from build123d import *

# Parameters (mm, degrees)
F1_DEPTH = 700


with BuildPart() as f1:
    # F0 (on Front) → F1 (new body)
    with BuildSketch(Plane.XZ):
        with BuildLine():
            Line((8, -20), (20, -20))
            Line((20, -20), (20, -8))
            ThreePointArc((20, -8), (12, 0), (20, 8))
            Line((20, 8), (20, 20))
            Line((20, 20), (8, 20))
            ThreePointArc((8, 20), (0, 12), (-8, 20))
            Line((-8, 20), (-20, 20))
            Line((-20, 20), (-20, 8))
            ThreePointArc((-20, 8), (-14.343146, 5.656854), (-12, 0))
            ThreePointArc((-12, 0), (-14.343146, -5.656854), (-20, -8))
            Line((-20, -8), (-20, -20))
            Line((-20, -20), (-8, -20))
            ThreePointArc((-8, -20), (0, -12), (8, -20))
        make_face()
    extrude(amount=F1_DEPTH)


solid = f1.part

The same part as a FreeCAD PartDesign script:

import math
import FreeCAD as App
import Part
import Sketcher

doc = App.newDocument("Part")
params = doc.addObject("Spreadsheet::Sheet", "Params")
for row, (alias, value) in enumerate([
    ("sketch1_radius", "8 mm"),
    ("sketch1_width", "12 mm"),
    ("pad1_length", "700 mm"),
], start=1):
    params.set(f"A{row}", alias)
    params.set(f"B{row}", "=" + value)
    params.setAlias(f"B{row}", alias)

body = doc.addObject("PartDesign::Body", "Body")

sketch1 = body.newObject("Sketcher::SketchObject", "Sketch")
sketch1.AttachmentSupport = (doc.getObject("XZ_Plane"), [""])
sketch1.MapMode = "FlatFace"
sketch1.addGeometry([
    Part.LineSegment(App.Vector(8, -20, 0), App.Vector(20, -20, 0)),
    Part.LineSegment(App.Vector(20, -20, 0), App.Vector(20, -8, 0)),
    Part.ArcOfCircle(Part.Circle(App.Vector(20, 0, 0), App.Vector(0, 0, 1), 8), math.radians(90), math.radians(270)),
    Part.LineSegment(App.Vector(20, 8, 0), App.Vector(20, 20, 0)),
    Part.LineSegment(App.Vector(20, 20, 0), App.Vector(8, 20, 0)),
    Part.ArcOfCircle(Part.Circle(App.Vector(0, 20, 0), App.Vector(0, 0, 1), 8), math.radians(180), math.radians(360)),
    Part.LineSegment(App.Vector(-8, 20, 0), App.Vector(-20, 20, 0)),
    Part.LineSegment(App.Vector(-20, 20, 0), App.Vector(-20, 8, 0)),
    Part.ArcOfCircle(Part.Circle(App.Vector(-20.000001, -0.000001, 0), App.Vector(0, 0, 1), 8.000001), math.radians(0.000006), math.radians(89.999994)),
    Part.ArcOfCircle(Part.Circle(App.Vector(-20.000001, 0.000001, 0), App.Vector(0, 0, 1), 8.000001), math.radians(-89.999994), math.radians(-0.000006)),
    Part.LineSegment(App.Vector(-20, -8, 0), App.Vector(-20, -20, 0)),
    Part.LineSegment(App.Vector(-20, -20, 0), App.Vector(-8, -20, 0)),
    Part.ArcOfCircle(Part.Circle(App.Vector(0, -20, 0), App.Vector(0, 0, 1), 8), math.radians(0), math.radians(180)),
], False)
sketch1.addConstraint([
    Sketcher.Constraint("Coincident", 0, 2, 1, 1),
    Sketcher.Constraint("Coincident", 1, 2, 2, 2),
    Sketcher.Constraint("Coincident", 2, 1, 3, 1),
    Sketcher.Constraint("Coincident", 3, 2, 4, 1),
    Sketcher.Constraint("Coincident", 4, 2, 5, 2),
    Sketcher.Constraint("Coincident", 5, 1, 6, 1),
    Sketcher.Constraint("Coincident", 6, 2, 7, 1),
    Sketcher.Constraint("Coincident", 7, 2, 8, 2),
    Sketcher.Constraint("Tangent", 8, 1, 9, 2),
    Sketcher.Constraint("Coincident", 9, 1, 10, 1),
    Sketcher.Constraint("Coincident", 10, 2, 11, 1),
    Sketcher.Constraint("Coincident", 11, 2, 12, 2),
    Sketcher.Constraint("Coincident", 12, 1, 0, 1),
    Sketcher.Constraint("Horizontal", 0),
    Sketcher.Constraint("Vertical", 1),
    Sketcher.Constraint("Vertical", 3),
    Sketcher.Constraint("Horizontal", 4),
    Sketcher.Constraint("Horizontal", 6),
    Sketcher.Constraint("Vertical", 7),
    Sketcher.Constraint("Vertical", 10),
    Sketcher.Constraint("Horizontal", 11),
    Sketcher.Constraint("Equal", 2, 5),
    Sketcher.Constraint("Equal", 5, 8),
    Sketcher.Constraint("Equal", 8, 9),
    Sketcher.Constraint("Equal", 9, 12),
    Sketcher.Constraint("Symmetric", 2, 3, 8, 3, -1, 1),
    Sketcher.Constraint("Symmetric", 5, 3, 12, 3, -1, 1),
    Sketcher.Constraint("Symmetric", 0, 2, 6, 2, -1, 1),
    Sketcher.Constraint("Symmetric", 3, 2, 10, 2, -1, 1),
    Sketcher.Constraint("Symmetric", 4, 2, 5, 1, -2),
    Sketcher.Constraint("Symmetric", 2, 1, 7, 2, -2),
    Sketcher.Constraint("PointOnObject", 8, 1, -1),
    Sketcher.Constraint("Horizontal", 12, 3, 0, 2),
    Sketcher.Constraint("Vertical", 2, 3, 0, 2),
    Sketcher.Constraint("Equal", 11, 1),
    Sketcher.Constraint("Radius", 2, 8.0),
    Sketcher.Constraint("DistanceX", 0, 1, 0, 2, 12.0),
])
sketch1.setExpression("Constraints[35]", "Params.sketch1_radius")
sketch1.setExpression("Constraints[36]", "Params.sketch1_width")
pad1 = body.newObject("PartDesign::Pad", "Pad")
pad1.Profile = sketch1
pad1.setExpression("Length", "Params.pad1_length")

doc.recompute()
